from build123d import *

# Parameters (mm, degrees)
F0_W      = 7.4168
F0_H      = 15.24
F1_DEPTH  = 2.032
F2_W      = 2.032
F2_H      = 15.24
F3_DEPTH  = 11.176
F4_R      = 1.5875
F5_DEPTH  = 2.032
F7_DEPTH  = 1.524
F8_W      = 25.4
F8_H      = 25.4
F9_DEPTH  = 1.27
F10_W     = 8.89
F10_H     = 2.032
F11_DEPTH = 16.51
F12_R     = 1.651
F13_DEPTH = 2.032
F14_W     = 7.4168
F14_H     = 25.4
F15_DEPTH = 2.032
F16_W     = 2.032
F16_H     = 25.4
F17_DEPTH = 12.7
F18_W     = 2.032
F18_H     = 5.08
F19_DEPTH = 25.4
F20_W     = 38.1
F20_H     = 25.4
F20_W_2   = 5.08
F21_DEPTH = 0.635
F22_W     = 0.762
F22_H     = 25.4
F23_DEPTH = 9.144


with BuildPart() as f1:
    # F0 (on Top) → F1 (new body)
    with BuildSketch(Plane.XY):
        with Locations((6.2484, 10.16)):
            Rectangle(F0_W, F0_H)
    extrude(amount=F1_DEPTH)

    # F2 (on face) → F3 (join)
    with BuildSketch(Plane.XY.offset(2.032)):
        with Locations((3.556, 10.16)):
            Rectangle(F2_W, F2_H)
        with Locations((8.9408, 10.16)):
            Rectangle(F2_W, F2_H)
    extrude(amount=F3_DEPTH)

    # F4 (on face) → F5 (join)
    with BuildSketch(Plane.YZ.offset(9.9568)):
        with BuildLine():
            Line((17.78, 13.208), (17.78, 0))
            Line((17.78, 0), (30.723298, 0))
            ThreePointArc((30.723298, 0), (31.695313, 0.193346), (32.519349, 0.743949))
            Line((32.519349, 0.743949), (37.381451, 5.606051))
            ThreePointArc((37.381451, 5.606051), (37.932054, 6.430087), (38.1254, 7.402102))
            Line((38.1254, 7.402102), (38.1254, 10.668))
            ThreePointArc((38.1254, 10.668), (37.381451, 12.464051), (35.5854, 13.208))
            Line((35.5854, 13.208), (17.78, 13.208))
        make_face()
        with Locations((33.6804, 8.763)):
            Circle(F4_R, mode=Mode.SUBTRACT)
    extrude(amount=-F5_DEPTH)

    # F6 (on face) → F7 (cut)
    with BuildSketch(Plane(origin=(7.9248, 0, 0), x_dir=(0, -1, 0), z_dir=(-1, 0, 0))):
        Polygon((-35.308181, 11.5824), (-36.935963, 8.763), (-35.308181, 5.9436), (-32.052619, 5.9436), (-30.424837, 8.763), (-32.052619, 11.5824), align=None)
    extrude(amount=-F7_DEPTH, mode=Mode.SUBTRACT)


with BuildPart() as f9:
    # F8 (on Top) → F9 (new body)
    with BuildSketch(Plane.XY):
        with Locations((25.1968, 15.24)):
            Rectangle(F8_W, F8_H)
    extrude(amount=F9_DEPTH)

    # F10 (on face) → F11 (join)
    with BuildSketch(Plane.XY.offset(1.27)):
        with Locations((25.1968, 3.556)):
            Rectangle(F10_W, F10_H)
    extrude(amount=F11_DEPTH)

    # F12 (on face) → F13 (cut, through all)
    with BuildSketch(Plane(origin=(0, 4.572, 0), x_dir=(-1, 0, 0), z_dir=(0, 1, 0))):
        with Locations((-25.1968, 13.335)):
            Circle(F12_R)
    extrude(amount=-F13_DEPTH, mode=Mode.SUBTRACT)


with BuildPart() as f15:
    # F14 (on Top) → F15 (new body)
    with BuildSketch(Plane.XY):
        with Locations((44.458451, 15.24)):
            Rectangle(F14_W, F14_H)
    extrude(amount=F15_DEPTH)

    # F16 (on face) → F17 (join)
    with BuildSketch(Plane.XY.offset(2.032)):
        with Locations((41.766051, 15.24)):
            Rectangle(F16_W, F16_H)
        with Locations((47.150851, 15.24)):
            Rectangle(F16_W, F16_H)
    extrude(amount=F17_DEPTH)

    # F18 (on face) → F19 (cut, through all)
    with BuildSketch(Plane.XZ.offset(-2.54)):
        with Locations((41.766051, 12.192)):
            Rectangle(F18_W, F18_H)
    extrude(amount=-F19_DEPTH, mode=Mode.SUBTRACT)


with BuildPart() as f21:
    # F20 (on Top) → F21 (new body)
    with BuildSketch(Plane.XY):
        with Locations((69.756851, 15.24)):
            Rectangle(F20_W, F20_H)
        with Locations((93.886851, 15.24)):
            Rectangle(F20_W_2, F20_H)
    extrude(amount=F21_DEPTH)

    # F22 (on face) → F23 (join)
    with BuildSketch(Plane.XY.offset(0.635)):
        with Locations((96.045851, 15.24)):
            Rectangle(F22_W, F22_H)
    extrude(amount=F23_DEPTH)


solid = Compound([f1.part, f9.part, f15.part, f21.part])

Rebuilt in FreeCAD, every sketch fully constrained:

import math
import FreeCAD as App
import Part
import Sketcher

V = App.Vector
Q = App.Units.Quantity


def add_polygon(sketch, points):
    """Adds a closed chain of lines whose ends are joined by coincident constraints."""
    first, n = sketch.GeometryCount, len(points)
    for a, b in zip(points, points[1:] + points[:1]):
        sketch.addGeometry(Part.LineSegment(App.Vector(*a, 0), App.Vector(*b, 0)), False)
    for i in range(n):
        sketch.addConstraint(Sketcher.Constraint("Coincident", first + i, 2, first + (i + 1) % n, 1))

doc = App.newDocument("Part")
body = doc.addObject("PartDesign::Body", "Body")

sketch1 = doc.addObject("Sketcher::SketchObject", "Sketch")
body.addObject(sketch1)
sketch1.AttachmentSupport = (doc.XY_Plane, [""])
sketch1.MapMode = "FlatFace"
add_polygon(sketch1, [(3, 18), (3, 3), (10, 3), (10, 18)])
sketch1.addConstraint([
    Sketcher.Constraint("Vertical", 0),
    Sketcher.Constraint("Horizontal", 1),
    Sketcher.Constraint("Vertical", 2),
    Sketcher.Constraint("Horizontal", 3),
    Sketcher.Constraint("DistanceY", 0, 2, 0, 1, Q("0.6 in")),
    Sketcher.Constraint("DistanceX", -1, 1, 0, 2, Q("0.1 in")),
    Sketcher.Constraint("DistanceY", -1, 1, 0, 2, Q("0.1 in")),
    Sketcher.Constraint("DistanceX", 1, 1, 1, 2, Q("0.292 in")),
])
pad1 = doc.addObject("PartDesign::Pad", "Pad")
body.addObject(pad1)
pad1.Profile = sketch1
pad1.Length = Q("0.08 in")

sketch2 = doc.addObject("Sketcher::SketchObject", "Sketch001")
body.addObject(sketch2)
sketch2.AttachmentSupport = (doc.XY_Plane, [""])
sketch2.MapMode = "FlatFace"
sketch2.AttachmentOffset = App.Placement(V(0, 0, 0.08 * 25.4), App.Rotation())
add_polygon(sketch2, [(2.5, 17.8), (2.5, 2.5), (4.6, 2.5), (4.6, 17.8)])
add_polygon(sketch2, [(7.9, 17.8), (7.9, 2.5), (10, 2.5), (10, 17.8)])
sketch2.addConstraint([
    Sketcher.Constraint("Vertical", 0),
    Sketcher.Constraint("Horizontal", 1),
    Sketcher.Constraint("Vertical", 2),
    Sketcher.Constraint("Horizontal", 3),
    Sketcher.Constraint("Vertical", 4),
    Sketcher.Constraint("Horizontal", 5),
    Sketcher.Constraint("Vertical", 6),
    Sketcher.Constraint("Horizontal", 7),
    Sketcher.Constraint("Horizontal", 1, 2, 4, 2),
    Sketcher.Constraint("Horizontal", 3, 2, 6, 2),
    Sketcher.Constraint("Equal", 3, 5),
    Sketcher.Constraint("DistanceY", 0, 2, 0, 1, Q("0.6 in")),
    Sketcher.Constraint("DistanceX", 1, 1, 1, 2, Q("0.08 in")),
    Sketcher.Constraint("DistanceX", -1, 1, 0, 2, Q("0.1 in")),
    Sketcher.Constraint("DistanceY", -1, 1, 0, 2, Q("0.1 in")),
    Sketcher.Constraint("DistanceX", -1, 1, 4, 2, Q("0.312 in")),
])
pad2 = doc.addObject("PartDesign::Pad", "Pad001")
body.addObject(pad2)
pad2.Profile = sketch2
pad2.Length = Q("0.44 in")

sketch3 = doc.addObject("Sketcher::SketchObject", "Sketch002")
body.addObject(sketch3)
sketch3.AttachmentSupport = (doc.YZ_Plane, [""])
sketch3.MapMode = "FlatFace"
sketch3.AttachmentOffset = App.Placement(V(0, 0, 0.392 * 25.4), App.Rotation())
sketch3.addGeometry([
    Part.LineSegment(V(17.8, 13.2, 0), V(17.8, 0, 0)),
    Part.LineSegment(V(17.8, 0, 0), V(30.7, 0, 0)),
    Part.ArcOfCircle(Part.Circle(V(30.7, 2.5, 0), V(0, 0, 1), 2.5), math.radians(-90), math.radians(-45)),
    Part.LineSegment(V(32.5, 0.7, 0), V(37.4, 5.6, 0)),
    Part.ArcOfCircle(Part.Circle(V(35.6, 7.4, 0), V(0, 0, 1), 2.5), math.radians(-45), math.radians(0)),
    Part.LineSegment(V(38.1, 7.4, 0), V(38.1, 10.7, 0)),
    Part.ArcOfCircle(Part.Circle(V(35.6, 10.7, 0), V(0, 0, 1), 2.5), math.radians(0), math.radians(90)),
    Part.LineSegment(V(35.6, 13.2, 0), V(17.8, 13.2, 0)),
    Part.Circle(V(33.7, 8.8, 0), V(0, 0, 1), 1.6),
], False)
sketch3.addConstraint([
    Sketcher.Constraint("Coincident", 0, 2, 1, 1),
    Sketcher.Constraint("Tangent", 1, 2, 2, 1),
    Sketcher.Constraint("Tangent", 2, 2, 3, 1),
    Sketcher.Constraint("Tangent", 3, 2, 4, 1),
    Sketcher.Constraint("Tangent", 4, 2, 5, 1),
    Sketcher.Constraint("Tangent", 5, 2, 6, 1),
    Sketcher.Constraint("Tangent", 6, 2, 7, 1),
    Sketcher.Constraint("Coincident", 7, 2, 0, 1),
    Sketcher.Constraint("Vertical", 0),
    Sketcher.Constraint("Horizontal", 1),
    Sketcher.Constraint("Vertical", 5),
    Sketcher.Constraint("Horizontal", 7),
    Sketcher.Constraint("Equal", 2, 4),
    Sketcher.Constraint("Equal", 4, 6),
    Sketcher.Constraint("PointOnObject", 0, 2, -1),
    Sketcher.Constraint("Radius", 2, Q("0.1000001 in")),
    Sketcher.Constraint("Diameter", 8, Q("0.125 in")),
    Sketcher.Constraint("Angle", 3, Q("45 deg")),
    Sketcher.Constraint("DistanceY", 0, 2, 0, 1, Q("0.52 in")),
    Sketcher.Constraint("DistanceX", -1, 1, 0, 2, Q("0.7 in")),
    Sketcher.Constraint("DistanceX", 7, 2, 7, 1, Q("0.701 in")),
    Sketcher.Constraint("DistanceX", -1, 1, 8, 3, Q("1.326 in")),
    Sketcher.Constraint("DistanceY", -1, 1, 8, 3, Q("0.345 in")),
    Sketcher.Constraint("DistanceX", -1, 1, 1, 2, 30.723298),
])
pad3 = doc.addObject("PartDesign::Pad", "Pad002")
body.addObject(pad3)
pad3.Profile = sketch3
pad3.Length = Q("0.08 in")
pad3.Reversed = True

sketch4 = doc.addObject("Sketcher::SketchObject", "Sketch003")
body.addObject(sketch4)
sketch4.AttachmentSupport = (doc.YZ_Plane, [""])
sketch4.MapMode = "FlatFace"
sketch4.AttachmentOffset = App.Placement(V(0, 0, 0.312 * 25.4), App.Rotation())
add_polygon(sketch4, [(35.3, 11.6), (36.9, 8.8), (35.3, 5.9), (32.1, 5.9), (30.4, 8.8), (32.1, 11.6)])
sketch4.addConstraint([
    Sketcher.Constraint("Horizontal", 2),
    Sketcher.Constraint("Horizontal", 5),
    Sketcher.Constraint("Parallel", 0, 3),
    Sketcher.Constraint("Parallel", 1, 4),
    Sketcher.Constraint("Horizontal", 0, 2, 3, 2),
    Sketcher.Constraint("Vertical", 2, 2, 4, 2),
    Sketcher.Constraint("Vertical", 1, 2, 5, 2),
    Sketcher.Constraint("Angle", 0, Q("-59.99999 deg")),
    Sketcher.Constraint("DistanceY", -1, 1, 0, 2, Q("0.345 in")),
    Sketcher.Constraint("DistanceY", -1, 1, 1, 2, Q("0.234 in")),
    Sketcher.Constraint("DistanceX", 2, 2, 2, 1, 3.255562),
    Sketcher.Constraint("DistanceX", -1, 1, 1, 2, 35.308181),
])
pocket1 = doc.addObject("PartDesign::Pocket", "Pocket")
body.addObject(pocket1)
pocket1.Profile = sketch4
pocket1.Length = Q("0.06 in")
pocket1.Reversed = True
body2 = doc.addObject("PartDesign::Body", "Body001")

sketch5 = doc.addObject("Sketcher::SketchObject", "Sketch004")
body2.addObject(sketch5)
sketch5.AttachmentSupport = (doc.getObject("XY_Plane001"), [""])
sketch5.MapMode = "FlatFace"
add_polygon(sketch5, [(12, 28), (12, 3), (38, 3), (38, 28)])
sketch5.addConstraint([
    Sketcher.Constraint("Vertical", 0),
    Sketcher.Constraint("Horizontal", 1),
    Sketcher.Constraint("Vertical", 2),
    Sketcher.Constraint("Horizontal", 3),
    Sketcher.Constraint("Equal", 3, 0),
    Sketcher.Constraint("DistanceX", 1, 1, 1, 2, Q("1 in")),
    Sketcher.Constraint("DistanceY", -1, 1, 0, 2, Q("0.1 in")),
    Sketcher.Constraint("DistanceX", -1, 1, 0, 2, Q("0.492 in")),
])
pad4 = doc.addObject("PartDesign::Pad", "Pad003")
body2.addObject(pad4)
pad4.Profile = sketch5
pad4.Length = Q("0.05 in")

sketch6 = doc.addObject("Sketcher::SketchObject", "Sketch005")
body2.addObject(sketch6)
sketch6.AttachmentSupport = (doc.getObject("XY_Plane001"), [""])
sketch6.MapMode = "FlatFace"
sketch6.AttachmentOffset = App.Placement(V(0, 0, 0.05 * 25.4), App.Rotation())
add_polygon(sketch6, [(20.8, 4.6), (20.8, 2.5), (29.6, 2.5), (29.6, 4.6)])
sketch6.addConstraint([
    Sketcher.Constraint("Vertical", 0),
    Sketcher.Constraint("Horizontal", 1),
    Sketcher.Constraint("Vertical", 2),
    Sketcher.Constraint("Horizontal", 3),
    Sketcher.Constraint("DistanceX", 1, 1, 1, 2, Q("0.35 in")),
    Sketcher.Constraint("DistanceY", 0, 2, 0, 1, Q("0.08 in")),
    Sketcher.Constraint("DistanceY", -1, 1, 0, 2, Q("0.1 in")),
    Sketcher.Constraint("DistanceX", -1, 1, 0, 2, Q("0.817 in")),
])
pad5 = doc.addObject("PartDesign::Pad", "Pad004")
body2.addObject(pad5)
pad5.Profile = sketch6
pad5.Length = Q("0.65 in")

sketch7 = doc.addObject("Sketcher::SketchObject", "Sketch006")
body2.addObject(sketch7)
sketch7.AttachmentSupport = (doc.getObject("XZ_Plane001"), [""])
sketch7.MapMode = "FlatFace"
sketch7.AttachmentOffset = App.Placement(V(0, 0, -0.18 * 25.4), App.Rotation())
sketch7.addGeometry(Part.Circle(V(25.2, 13.3, 0), V(0, 0, 1), 1.7), False)
sketch7.addConstraint([
    Sketcher.Constraint("Diameter", 0, Q("0.13 in")),
    Sketcher.Constraint("DistanceX", -1, 1, 0, 3, Q("0.992 in")),
    Sketcher.Constraint("DistanceY", -1, 1, 0, 3, Q("0.525 in")),
])
pocket2 = doc.addObject("PartDesign::Pocket", "Pocket001")
body2.addObject(pocket2)
pocket2.Profile = sketch7
pocket2.Type = "ThroughAll"
pocket2.Reversed = True
body3 = doc.addObject("PartDesign::Body", "Body002")

sketch8 = doc.addObject("Sketcher::SketchObject", "Sketch007")
body3.addObject(sketch8)
sketch8.AttachmentSupport = (doc.getObject("XY_Plane002"), [""])
sketch8.MapMode = "FlatFace"
add_polygon(sketch8, [(41, 28), (41, 3), (48, 3), (48, 28)])
sketch8.addConstraint([
    Sketcher.Constraint("Vertical", 0),
    Sketcher.Constraint("Horizontal", 1),
    Sketcher.Constraint("Vertical", 2),
    Sketcher.Constraint("Horizontal", 3),
    Sketcher.Constraint("DistanceY", 0, 2, 0, 1, Q("1 in")),
    Sketcher.Constraint("DistanceY", -1, 1, 0, 2, Q("0.1 in")),
    Sketcher.Constraint("DistanceX", 1, 1, 1, 2, Q("0.292 in")),
    Sketcher.Constraint("DistanceX", -1, 1, 0, 2, 40.750051),
])
pad6 = doc.addObject("PartDesign::Pad", "Pad005")
body3.addObject(pad6)
pad6.Profile = sketch8
pad6.Length = Q("0.08 in")

sketch9 = doc.addObject("Sketcher::SketchObject", "Sketch008")
body3.addObject(sketch9)
sketch9.AttachmentSupport = (doc.getObject("XY_Plane002"), [""])
sketch9.MapMode = "FlatFace"
sketch9.AttachmentOffset = App.Placement(V(0, 0, 0.08 * 25.4), App.Rotation())
add_polygon(sketch9, [(40.8, 27.9), (40.8, 2.5), (42.8, 2.5), (42.8, 27.9)])
add_polygon(sketch9, [(46.1, 27.9), (46.1, 2.5), (48.2, 2.5), (48.2, 27.9)])
sketch9.addConstraint([
    Sketcher.Constraint("Vertical", 0),
    Sketcher.Constraint("Horizontal", 1),
    Sketcher.Constraint("Vertical", 2),
    Sketcher.Constraint("Horizontal", 3),
    Sketcher.Constraint("Vertical", 4),
    Sketcher.Constraint("Horizontal", 5),
    Sketcher.Constraint("Vertical", 6),
    Sketcher.Constraint("Horizontal", 7),
    Sketcher.Constraint("Horizontal", 1, 2, 4, 2),
    Sketcher.Constraint("Horizontal", 3, 2, 6, 2),
    Sketcher.Constraint("Equal", 3, 5),
    Sketcher.Constraint("DistanceY", 0, 2, 0, 1, Q("1 in")),
    Sketcher.Constraint("DistanceX", 1, 1, 1, 2, Q("0.08 in")),
    Sketcher.Constraint("DistanceY", -1, 1, 0, 2, Q("0.1 in")),
    Sketcher.Constraint("DistanceX", 1, 2, 4, 2, Q("0.132 in")),
    Sketcher.Constraint("DistanceX", -1, 1, 0, 2, 40.750051),
])
pad7 = doc.addObject("PartDesign::Pad", "Pad006")
body3.addObject(pad7)
pad7.Profile = sketch9
pad7.Length = Q("0.5 in")

sketch10 = doc.addObject("Sketcher::SketchObject", "Sketch009")
body3.addObject(sketch10)
sketch10.AttachmentSupport = (doc.getObject("XZ_Plane002"), [""])
sketch10.MapMode = "FlatFace"
sketch10.AttachmentOffset = App.Placement(V(0, 0, -0.1 * 25.4), App.Rotation())
add_polygon(sketch10, [(40.8, 14.7), (40.8, 9.7), (42.8, 9.7), (42.8, 14.7)])
sketch10.addConstraint([
    Sketcher.Constraint("Vertical", 0),
    Sketcher.Constraint("Horizontal", 1),
    Sketcher.Constraint("Vertical", 2),
    Sketcher.Constraint("Horizontal", 3),
    Sketcher.Constraint("DistanceY", 0, 2, 0, 1, Q("0.2 in")),
    Sketcher.Constraint("DistanceX", 1, 1, 1, 2, Q("0.08 in")),
    Sketcher.Constraint("DistanceY", -1, 1, 0, 2, Q("0.38 in")),
    Sketcher.Constraint("DistanceX", -1, 1, 0, 2, 40.750051),
])
pocket3 = doc.addObject("PartDesign::Pocket", "Pocket002")
body3.addObject(pocket3)
pocket3.Profile = sketch10
pocket3.Type = "ThroughAll"
body4 = doc.addObject("PartDesign::Body", "Body003")
body4.AllowCompound = True

sketch11 = doc.addObject("Sketcher::SketchObject", "Sketch010")
body4.addObject(sketch11)
sketch11.AttachmentSupport = (doc.getObject("XY_Plane003"), [""])
sketch11.MapMode = "FlatFace"
add_polygon(sketch11, [(51, 28), (51, 3), (89, 3), (89, 28)])
add_polygon(sketch11, [(91, 28), (91, 3), (96, 3), (96, 28)])
sketch11.addConstraint([
    Sketcher.Constraint("Vertical", 0),
    Sketcher.Constraint("Horizontal", 1),
    Sketcher.Constraint("Vertical", 2),
    Sketcher.Constraint("Horizontal", 3),
    Sketcher.Constraint("Vertical", 4),
    Sketcher.Constraint("Horizontal", 5),
    Sketcher.Constraint("Vertical", 6),
    Sketcher.Constraint("Horizontal", 7),
    Sketcher.Constraint("Horizontal", 1, 2, 4, 2),
    Sketcher.Constraint("Horizontal", 3, 2, 6, 2),
    Sketcher.Constraint("DistanceY", 0, 2, 0, 1, Q("1 in")),
    Sketcher.Constraint("DistanceX", 1, 1, 1, 2, Q("1.5 in")),
    Sketcher.Constraint("DistanceX", 5, 1, 5, 2, Q("0.2 in")),
    Sketcher.Constraint("DistanceY", -1, 1, 0, 2, Q("0.1 in")),
    Sketcher.Constraint("DistanceX", 1, 2, 4, 2, Q("0.1 in")),
    Sketcher.Constraint("DistanceX", -1, 1, 0, 2, 50.706851),
])
pad8 = doc.addObject("PartDesign::Pad", "Pad007")
body4.addObject(pad8)
pad8.Profile = sketch11
pad8.Length = Q("0.025 in")

sketch12 = doc.addObject("Sketcher::SketchObject", "Sketch011")
body4.addObject(sketch12)
sketch12.AttachmentSupport = (doc.getObject("XY_Plane003"), [""])
sketch12.MapMode = "FlatFace"
sketch12.AttachmentOffset = App.Placement(V(0, 0, 0.025 * 25.4), App.Rotation())
add_polygon(sketch12, [(95.7, 27.9), (95.7, 2.5), (96.4, 2.5), (96.4, 27.9)])
sketch12.addConstraint([
    Sketcher.Constraint("Vertical", 0),
    Sketcher.Constraint("Horizontal", 1),
    Sketcher.Constraint("Vertical", 2),
    Sketcher.Constraint("Horizontal", 3),
    Sketcher.Constraint("DistanceY", 0, 2, 0, 1, Q("1 in")),
    Sketcher.Constraint("DistanceX", 1, 1, 1, 2, Q("0.03 in")),
    Sketcher.Constraint("DistanceY", -1, 1, 0, 2, Q("0.1 in")),
    Sketcher.Constraint("DistanceX", -1, 1, 0, 2, 95.664851),
])
pad9 = doc.addObject("PartDesign::Pad", "Pad008")
body4.addObject(pad9)
pad9.Profile = sketch12
pad9.Length = Q("0.36 in")

doc.recompute()
